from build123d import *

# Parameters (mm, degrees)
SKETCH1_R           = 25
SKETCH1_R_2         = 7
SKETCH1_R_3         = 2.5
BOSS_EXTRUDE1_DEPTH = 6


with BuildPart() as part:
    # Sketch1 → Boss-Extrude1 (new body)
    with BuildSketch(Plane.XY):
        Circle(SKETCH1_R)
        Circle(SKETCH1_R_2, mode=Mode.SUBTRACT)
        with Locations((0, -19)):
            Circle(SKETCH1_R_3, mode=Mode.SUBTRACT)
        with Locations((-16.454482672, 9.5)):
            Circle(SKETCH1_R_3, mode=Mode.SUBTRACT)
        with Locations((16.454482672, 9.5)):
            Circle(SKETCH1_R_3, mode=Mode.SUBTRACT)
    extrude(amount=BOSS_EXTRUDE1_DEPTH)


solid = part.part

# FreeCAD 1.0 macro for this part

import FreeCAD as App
import Part
import Sketcher
from FreeCAD import Vector

doc = App.newDocument("Part")
body = doc.addObject("PartDesign::Body", "Body")

# Sketch on XY plane
sketch1 = doc.addObject("Sketcher::SketchObject", "Sketch")
body.addObject(sketch1)
sketch1.AttachmentSupport = (doc.XY_Plane, [""])
sketch1.MapMode = "FlatFace"
sketch1.addGeometry([
    Part.Circle(Vector(0, 0, 0), Vector(0, 0, 1), 25),  # 0
    Part.Circle(Vector(0, -19, 0), Vector(0, 0, 1), 2.5),  # 1
    Part.Circle(Vector(-16.5, 9.5, 0), Vector(0, 0, 1), 2.5),  # 2
    Part.Circle(Vector(0, 0, 0), Vector(0, 0, 1), 7),  # 3
    Part.Circle(Vector(16.5, 9.5, 0), Vector(0, 0, 1), 2.5),  # 4
], False)
sketch1.addConstraint([
    Sketcher.Constraint("Coincident", 0, 3, -1, 1),
    Sketcher.Constraint("Coincident", 3, 3, -1, 1),
    Sketcher.Constraint("Equal", 1, 2),
    Sketcher.Constraint("Equal", 2, 4),
    Sketcher.Constraint("Symmetric", 2, 3, 4, 3, -2),
    Sketcher.Constraint("PointOnObject", 1, 3, -2),
    Sketcher.Constraint("Diameter", 0, 50.0),
    Sketcher.Constraint("Diameter", 1, 5.0),
    Sketcher.Constraint("Diameter", 3, 14.0),
    Sketcher.Constraint("DistanceY", 1, 3, -1, 1, 19.0),
    Sketcher.Constraint("DistanceY", -1, 1, 2, 3, 9.5),
    Sketcher.Constraint("DistanceX", 2, 3, -1, 1, 16.454483),
])
pad1 = doc.addObject("PartDesign::Pad", "Pad")
body.addObject(pad1)
pad1.Profile = sketch1
pad1.Length = 6

doc.recompute()
